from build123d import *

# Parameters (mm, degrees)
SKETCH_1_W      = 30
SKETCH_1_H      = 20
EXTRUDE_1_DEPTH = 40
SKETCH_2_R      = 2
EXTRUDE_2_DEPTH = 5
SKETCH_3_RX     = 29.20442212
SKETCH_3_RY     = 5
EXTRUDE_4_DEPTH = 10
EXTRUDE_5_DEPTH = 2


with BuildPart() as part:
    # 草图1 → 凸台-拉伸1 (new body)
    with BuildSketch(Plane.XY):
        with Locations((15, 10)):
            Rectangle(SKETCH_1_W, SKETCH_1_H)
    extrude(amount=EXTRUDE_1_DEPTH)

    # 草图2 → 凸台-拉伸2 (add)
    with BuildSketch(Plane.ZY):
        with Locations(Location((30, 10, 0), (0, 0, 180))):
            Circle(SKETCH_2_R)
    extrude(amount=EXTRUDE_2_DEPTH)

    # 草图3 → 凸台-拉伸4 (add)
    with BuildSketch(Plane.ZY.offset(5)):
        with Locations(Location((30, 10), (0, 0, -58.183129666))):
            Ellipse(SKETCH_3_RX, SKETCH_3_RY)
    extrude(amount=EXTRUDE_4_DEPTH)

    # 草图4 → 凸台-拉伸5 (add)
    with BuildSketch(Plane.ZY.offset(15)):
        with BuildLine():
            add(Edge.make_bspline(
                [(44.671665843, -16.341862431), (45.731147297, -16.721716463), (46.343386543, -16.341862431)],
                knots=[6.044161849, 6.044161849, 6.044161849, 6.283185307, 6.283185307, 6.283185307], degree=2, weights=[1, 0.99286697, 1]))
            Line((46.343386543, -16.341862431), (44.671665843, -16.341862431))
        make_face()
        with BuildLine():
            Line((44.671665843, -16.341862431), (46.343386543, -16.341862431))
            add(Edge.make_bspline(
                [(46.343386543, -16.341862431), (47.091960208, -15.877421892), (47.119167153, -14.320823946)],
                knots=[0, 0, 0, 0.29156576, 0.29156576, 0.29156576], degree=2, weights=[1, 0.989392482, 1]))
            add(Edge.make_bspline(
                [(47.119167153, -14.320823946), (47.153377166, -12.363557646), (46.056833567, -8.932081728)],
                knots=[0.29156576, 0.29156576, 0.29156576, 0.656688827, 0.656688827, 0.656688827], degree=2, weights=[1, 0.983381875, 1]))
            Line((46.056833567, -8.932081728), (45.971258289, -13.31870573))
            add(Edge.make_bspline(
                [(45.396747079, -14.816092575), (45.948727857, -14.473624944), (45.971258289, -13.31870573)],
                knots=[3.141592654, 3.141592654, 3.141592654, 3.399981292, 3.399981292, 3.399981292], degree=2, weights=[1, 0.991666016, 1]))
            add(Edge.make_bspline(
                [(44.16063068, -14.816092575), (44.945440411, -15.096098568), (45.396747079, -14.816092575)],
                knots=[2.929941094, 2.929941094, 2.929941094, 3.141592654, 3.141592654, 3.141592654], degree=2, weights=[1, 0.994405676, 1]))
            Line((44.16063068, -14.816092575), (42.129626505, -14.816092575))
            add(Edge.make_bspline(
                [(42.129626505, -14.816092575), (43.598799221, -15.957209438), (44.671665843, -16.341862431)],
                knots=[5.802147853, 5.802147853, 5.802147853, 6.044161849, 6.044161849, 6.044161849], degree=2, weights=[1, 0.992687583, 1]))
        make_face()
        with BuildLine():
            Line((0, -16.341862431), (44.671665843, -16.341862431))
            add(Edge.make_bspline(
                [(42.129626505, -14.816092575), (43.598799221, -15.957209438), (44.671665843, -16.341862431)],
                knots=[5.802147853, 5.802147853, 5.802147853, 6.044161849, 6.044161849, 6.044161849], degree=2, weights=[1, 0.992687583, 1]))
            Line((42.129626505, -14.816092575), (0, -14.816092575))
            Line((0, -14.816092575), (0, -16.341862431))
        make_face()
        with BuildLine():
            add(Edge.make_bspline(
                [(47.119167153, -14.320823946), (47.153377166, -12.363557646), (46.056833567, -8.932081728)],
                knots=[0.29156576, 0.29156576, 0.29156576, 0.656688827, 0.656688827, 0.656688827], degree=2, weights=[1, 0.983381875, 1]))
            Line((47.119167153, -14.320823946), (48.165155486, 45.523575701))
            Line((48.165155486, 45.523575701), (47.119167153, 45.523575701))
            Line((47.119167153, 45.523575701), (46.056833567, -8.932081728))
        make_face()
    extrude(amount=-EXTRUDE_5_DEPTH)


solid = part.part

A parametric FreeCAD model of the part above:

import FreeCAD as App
import Part
import Sketcher

doc = App.newDocument("Part")
body = doc.addObject("PartDesign::Body", "Body")

# Sketch on XY plane
sketch1 = doc.addObject("Sketcher::SketchObject", "Sketch")
body.addObject(sketch1)
sketch1.AttachmentSupport = (doc.XY_Plane, [""])
sketch1.MapMode = "FlatFace"
sketch1.addGeometry([
    Part.LineSegment(App.Vector(0, 20, 0), App.Vector(0, 0, 0)),
    Part.LineSegment(App.Vector(0, 0, 0), App.Vector(30, 0, 0)),
    Part.LineSegment(App.Vector(30, 0, 0), App.Vector(30, 20, 0)),
    Part.LineSegment(App.Vector(30, 20, 0), App.Vector(0, 20, 0)),
], False)
sketch1.addConstraint([
    Sketcher.Constraint("Coincident", 0, 2, 1, 1),
    Sketcher.Constraint("Coincident", 1, 2, 2, 1),
    Sketcher.Constraint("Coincident", 2, 2, 3, 1),
    Sketcher.Constraint("Coincident", 3, 2, 0, 1),
    Sketcher.Constraint("Vertical", 0),
    Sketcher.Constraint("Horizontal", 1),
    Sketcher.Constraint("Vertical", 2),
    Sketcher.Constraint("Horizontal", 3),
    Sketcher.Constraint("Coincident", 0, 2, -1, 1),
    Sketcher.Constraint("DistanceX", 1, 1, 1, 2, 30.0),
    Sketcher.Constraint("DistanceY", 0, 2, 0, 1, 20.0),
])
pad1 = doc.addObject("PartDesign::Pad", "Pad")
body.addObject(pad1)
pad1.Profile = sketch1
pad1.Length = 40

# Sketch on YZ plane
sketch2 = doc.addObject("Sketcher::SketchObject", "Sketch001")
body.addObject(sketch2)
sketch2.AttachmentSupport = (doc.YZ_Plane, [""])
sketch2.MapMode = "FlatFace"
sketch2.addGeometry(Part.Circle(App.Vector(10, 30, 0), App.Vector(0, 0, 1), 2), False)
sketch2.addConstraint([
    Sketcher.Constraint("Diameter", 0, 4.0),
    Sketcher.Constraint("DistanceX", -1, 1, 0, 3, 10.0),
    Sketcher.Constraint("DistanceY", -1, 1, 0, 3, 30.0),
])
pad2 = doc.addObject("PartDesign::Pad", "Pad001")
body.addObject(pad2)
pad2.Profile = sketch2
pad2.Length = 5
pad2.Reversed = True

# Sketch on YZ plane
sketch3 = doc.addObject("Sketcher::SketchObject", "Sketch002")
body.addObject(sketch3)
sketch3.AttachmentSupport = (doc.YZ_Plane, [""])
sketch3.MapMode = "FlatFace"
sketch3.AttachmentOffset = App.Placement(App.Vector(0, 0, -5), App.Rotation())
sketch3.addGeometry(Part.Ellipse(App.Vector(-14.816093, 45.396747, 0), App.Vector(7.36397, 25.751313, 0), App.Vector(10, 30, 0)), False)
sketch3.addConstraint(Sketcher.Constraint("Block", 0))
pad3 = doc.addObject("PartDesign::Pad", "Pad002")
body.addObject(pad3)
pad3.Profile = sketch3
pad3.Length = 10
pad3.Reversed = True

# Sketch on YZ plane
sketch4 = doc.addObject("Sketcher::SketchObject", "Sketch003")
body.addObject(sketch4)
sketch4.AttachmentSupport = (doc.YZ_Plane, [""])
sketch4.MapMode = "FlatFace"
sketch4.AttachmentOffset = App.Placement(App.Vector(0, 0, -15), App.Rotation())
sketch4.addGeometry([
    Part.BSplineCurve([App.Vector(-16.341862, 44.671666, 0), App.Vector(-16.721716, 45.731147, 0), App.Vector(-16.341862, 46.343387, 0)], [3, 3], [6.044161849, 6.283185307], False, 2, [1, 0.99286697, 1], False),  # 0
    Part.BSplineCurve([App.Vector(-16.341862, 46.343387, 0), App.Vector(-15.877422, 47.09196, 0), App.Vector(-14.320824, 47.119167, 0)], [3, 3], [0, 0.29156576], False, 2, [1, 0.989392482, 1], False),  # 1
    Part.LineSegment(App.Vector(-14.320824, 47.119167, 0), App.Vector(45.523576, 48.165155, 0)),  # 2
    Part.LineSegment(App.Vector(45.523576, 48.165155, 0), App.Vector(45.523576, 47.119167, 0)),  # 3
    Part.LineSegment(App.Vector(45.523576, 47.119167, 0), App.Vector(-8.932082, 46.056834, 0)),  # 4
    Part.LineSegment(App.Vector(-8.932082, 46.056834, 0), App.Vector(-13.318706, 45.971258, 0)),  # 5
    Part.BSplineCurve([App.Vector(-14.816093, 45.396747, 0), App.Vector(-14.473625, 45.948728, 0), App.Vector(-13.318706, 45.971258, 0)], [3, 3], [3.141592654, 3.399981292], False, 2, [1, 0.991666016, 1], False),  # 6
    Part.BSplineCurve([App.Vector(-14.816093, 44.160631, 0), App.Vector(-15.096099, 44.94544, 0), App.Vector(-14.816093, 45.396747, 0)], [3, 3], [2.929941094, 3.141592654], False, 2, [1, 0.994405676, 1], False),  # 7
    Part.LineSegment(App.Vector(-14.816093, 44.160631, 0), App.Vector(-14.816093, 0, 0)),  # 8
    Part.LineSegment(App.Vector(-14.816093, 0, 0), App.Vector(-16.341862, 0, 0)),  # 9
    Part.LineSegment(App.Vector(-16.341862, 0, 0), App.Vector(-16.341862, 44.671666, 0)),  # 10
], False)
sketch4.addConstraint([
    Sketcher.Constraint("Block", 0),
    Sketcher.Constraint("Block", 1),
    Sketcher.Constraint("Block", 6),
    Sketcher.Constraint("Block", 7),
    Sketcher.Constraint("Coincident", 1, 2, 2, 1),
    Sketcher.Constraint("Coincident", 2, 2, 3, 1),
    Sketcher.Constraint("Coincident", 3, 2, 4, 1),
    Sketcher.Constraint("Coincident", 4, 2, 5, 1),
    Sketcher.Constraint("Coincident", 5, 2, 6, 2),
    Sketcher.Constraint("Coincident", 7, 1, 8, 1),
    Sketcher.Constraint("Coincident", 8, 2, 9, 1),
    Sketcher.Constraint("Coincident", 9, 2, 10, 1),
    Sketcher.Constraint("Coincident", 10, 2, 0, 1),
    Sketcher.Constraint("Vertical", 3),
    Sketcher.Constraint("Vertical", 8),
    Sketcher.Constraint("Horizontal", 9),
    Sketcher.Constraint("Vertical", 10),
    Sketcher.Constraint("PointOnObject", 8, 2, -1),
    Sketcher.Constraint("DistanceY", 3, 2, 3, 1, 1.045988),
    Sketcher.Constraint("DistanceY", 10, 2, 3, 2, 2.447501),
    Sketcher.Constraint("Distance", 2, 59.85354),
    Sketcher.Constraint("Distance", 4, 54.466019),
    Sketcher.Constraint("DistanceX", 4, 2, -1, 1, 8.932082),
])
pad4 = doc.addObject("PartDesign::Pad", "Pad003")
body.addObject(pad4)
pad4.Profile = sketch4
pad4.Length = 2

doc.recompute()
